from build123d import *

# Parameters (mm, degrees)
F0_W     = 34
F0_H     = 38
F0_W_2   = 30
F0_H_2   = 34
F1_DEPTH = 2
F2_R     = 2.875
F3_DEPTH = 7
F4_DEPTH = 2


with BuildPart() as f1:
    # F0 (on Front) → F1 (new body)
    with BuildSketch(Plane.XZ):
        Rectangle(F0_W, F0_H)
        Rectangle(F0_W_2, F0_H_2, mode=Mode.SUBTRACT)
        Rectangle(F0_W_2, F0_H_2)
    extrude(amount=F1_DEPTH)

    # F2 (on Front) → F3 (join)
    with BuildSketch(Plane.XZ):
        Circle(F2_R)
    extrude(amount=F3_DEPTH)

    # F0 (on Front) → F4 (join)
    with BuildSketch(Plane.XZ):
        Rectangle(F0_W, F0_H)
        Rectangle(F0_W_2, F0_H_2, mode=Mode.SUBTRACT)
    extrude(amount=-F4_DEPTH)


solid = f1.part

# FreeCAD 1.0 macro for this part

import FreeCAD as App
import Part
import Sketcher


def add_polygon(sketch, points):
    """Adds a closed chain of lines whose ends are joined by coincident constraints."""
    first, n = sketch.GeometryCount, len(points)
    for a, b in zip(points, points[1:] + points[:1]):
        sketch.addGeometry(Part.LineSegment(App.Vector(*a, 0), App.Vector(*b, 0)), False)
    for i in range(n):
        sketch.addConstraint(Sketcher.Constraint("Coincident", first + i, 2, first + (i + 1) % n, 1))

doc = App.newDocument("Part")
body = doc.addObject("PartDesign::Body", "Body")

# Sketch on XZ plane
sketch1 = body.newObject("Sketcher::SketchObject", "Sketch")
sketch1.AttachmentSupport = (doc.getObject("XZ_Plane"), [""])
sketch1.MapMode = "FlatFace"
add_polygon(sketch1, [(-17, 19), (-17, -19), (17, -19), (17, 19)])  # lines 0-3
sketch1.addConstraint([
    Sketcher.Constraint("Vertical", 0),
    Sketcher.Constraint("Horizontal", 1),
    Sketcher.Constraint("Vertical", 2),
    Sketcher.Constraint("Horizontal", 3),
    Sketcher.Constraint("Symmetric", 0, 2, 2, 2, -1, 1),
    Sketcher.Constraint("DistanceX", 1, 1, 1, 2, 34.0),
    Sketcher.Constraint("DistanceY", 0, 2, 0, 1, 38.0),
])
pad1 = body.newObject("PartDesign::Pad", "Pad")
pad1.Profile = sketch1
pad1.Length = 2

# Sketch on XZ plane
sketch2 = body.newObject("Sketcher::SketchObject", "Sketch001")
sketch2.AttachmentSupport = (doc.getObject("XZ_Plane"), [""])
sketch2.MapMode = "FlatFace"
sketch2.addGeometry(Part.Circle(App.Vector(0, 0, 0), App.Vector(0, 0, 1), 2.9), False)
sketch2.addConstraint([
    Sketcher.Constraint("Coincident", 0, 3, -1, 1),
    Sketcher.Constraint("Diameter", 0, 5.75),
])
pad2 = body.newObject("PartDesign::Pad", "Pad001")
pad2.Profile = sketch2
pad2.Length = 7

# Sketch on XZ plane
sketch3 = body.newObject("Sketcher::SketchObject", "Sketch002")
sketch3.AttachmentSupport = (doc.getObject("XZ_Plane"), [""])
sketch3.MapMode = "FlatFace"
add_polygon(sketch3, [(-17, 19), (-17, -19), (17, -19), (17, 19)])  # lines 0-3
add_polygon(sketch3, [(15, -17), (-15, -17), (-15, 17), (15, 17)])  # lines 4-7
sketch3.addConstraint([
    Sketcher.Constraint("Vertical", 0),
    Sketcher.Constraint("Horizontal", 1),
    Sketcher.Constraint("Vertical", 2),
    Sketcher.Constraint("Horizontal", 3),
    Sketcher.Constraint("Horizontal", 4),
    Sketcher.Constraint("Vertical", 5),
    Sketcher.Constraint("Horizontal", 6),
    Sketcher.Constraint("Vertical", 7),
    Sketcher.Constraint("Symmetric", 0, 2, 2, 2, -1, 1),
    Sketcher.Constraint("Symmetric", 4, 2, 6, 2, -1, 1),
    Sketcher.Constraint("Equal", 3, 5),
    Sketcher.Constraint("DistanceX", 1, 1, 1, 2, 34.0),
    Sketcher.Constraint("DistanceX", 4, 2, 4, 1, 30.0),
    Sketcher.Constraint("DistanceY", 0, 2, 0, 1, 38.0),
])
pad3 = body.newObject("PartDesign::Pad", "Pad002")
pad3.Profile = sketch3
pad3.Length = 2
pad3.Reversed = True

doc.recompute()
